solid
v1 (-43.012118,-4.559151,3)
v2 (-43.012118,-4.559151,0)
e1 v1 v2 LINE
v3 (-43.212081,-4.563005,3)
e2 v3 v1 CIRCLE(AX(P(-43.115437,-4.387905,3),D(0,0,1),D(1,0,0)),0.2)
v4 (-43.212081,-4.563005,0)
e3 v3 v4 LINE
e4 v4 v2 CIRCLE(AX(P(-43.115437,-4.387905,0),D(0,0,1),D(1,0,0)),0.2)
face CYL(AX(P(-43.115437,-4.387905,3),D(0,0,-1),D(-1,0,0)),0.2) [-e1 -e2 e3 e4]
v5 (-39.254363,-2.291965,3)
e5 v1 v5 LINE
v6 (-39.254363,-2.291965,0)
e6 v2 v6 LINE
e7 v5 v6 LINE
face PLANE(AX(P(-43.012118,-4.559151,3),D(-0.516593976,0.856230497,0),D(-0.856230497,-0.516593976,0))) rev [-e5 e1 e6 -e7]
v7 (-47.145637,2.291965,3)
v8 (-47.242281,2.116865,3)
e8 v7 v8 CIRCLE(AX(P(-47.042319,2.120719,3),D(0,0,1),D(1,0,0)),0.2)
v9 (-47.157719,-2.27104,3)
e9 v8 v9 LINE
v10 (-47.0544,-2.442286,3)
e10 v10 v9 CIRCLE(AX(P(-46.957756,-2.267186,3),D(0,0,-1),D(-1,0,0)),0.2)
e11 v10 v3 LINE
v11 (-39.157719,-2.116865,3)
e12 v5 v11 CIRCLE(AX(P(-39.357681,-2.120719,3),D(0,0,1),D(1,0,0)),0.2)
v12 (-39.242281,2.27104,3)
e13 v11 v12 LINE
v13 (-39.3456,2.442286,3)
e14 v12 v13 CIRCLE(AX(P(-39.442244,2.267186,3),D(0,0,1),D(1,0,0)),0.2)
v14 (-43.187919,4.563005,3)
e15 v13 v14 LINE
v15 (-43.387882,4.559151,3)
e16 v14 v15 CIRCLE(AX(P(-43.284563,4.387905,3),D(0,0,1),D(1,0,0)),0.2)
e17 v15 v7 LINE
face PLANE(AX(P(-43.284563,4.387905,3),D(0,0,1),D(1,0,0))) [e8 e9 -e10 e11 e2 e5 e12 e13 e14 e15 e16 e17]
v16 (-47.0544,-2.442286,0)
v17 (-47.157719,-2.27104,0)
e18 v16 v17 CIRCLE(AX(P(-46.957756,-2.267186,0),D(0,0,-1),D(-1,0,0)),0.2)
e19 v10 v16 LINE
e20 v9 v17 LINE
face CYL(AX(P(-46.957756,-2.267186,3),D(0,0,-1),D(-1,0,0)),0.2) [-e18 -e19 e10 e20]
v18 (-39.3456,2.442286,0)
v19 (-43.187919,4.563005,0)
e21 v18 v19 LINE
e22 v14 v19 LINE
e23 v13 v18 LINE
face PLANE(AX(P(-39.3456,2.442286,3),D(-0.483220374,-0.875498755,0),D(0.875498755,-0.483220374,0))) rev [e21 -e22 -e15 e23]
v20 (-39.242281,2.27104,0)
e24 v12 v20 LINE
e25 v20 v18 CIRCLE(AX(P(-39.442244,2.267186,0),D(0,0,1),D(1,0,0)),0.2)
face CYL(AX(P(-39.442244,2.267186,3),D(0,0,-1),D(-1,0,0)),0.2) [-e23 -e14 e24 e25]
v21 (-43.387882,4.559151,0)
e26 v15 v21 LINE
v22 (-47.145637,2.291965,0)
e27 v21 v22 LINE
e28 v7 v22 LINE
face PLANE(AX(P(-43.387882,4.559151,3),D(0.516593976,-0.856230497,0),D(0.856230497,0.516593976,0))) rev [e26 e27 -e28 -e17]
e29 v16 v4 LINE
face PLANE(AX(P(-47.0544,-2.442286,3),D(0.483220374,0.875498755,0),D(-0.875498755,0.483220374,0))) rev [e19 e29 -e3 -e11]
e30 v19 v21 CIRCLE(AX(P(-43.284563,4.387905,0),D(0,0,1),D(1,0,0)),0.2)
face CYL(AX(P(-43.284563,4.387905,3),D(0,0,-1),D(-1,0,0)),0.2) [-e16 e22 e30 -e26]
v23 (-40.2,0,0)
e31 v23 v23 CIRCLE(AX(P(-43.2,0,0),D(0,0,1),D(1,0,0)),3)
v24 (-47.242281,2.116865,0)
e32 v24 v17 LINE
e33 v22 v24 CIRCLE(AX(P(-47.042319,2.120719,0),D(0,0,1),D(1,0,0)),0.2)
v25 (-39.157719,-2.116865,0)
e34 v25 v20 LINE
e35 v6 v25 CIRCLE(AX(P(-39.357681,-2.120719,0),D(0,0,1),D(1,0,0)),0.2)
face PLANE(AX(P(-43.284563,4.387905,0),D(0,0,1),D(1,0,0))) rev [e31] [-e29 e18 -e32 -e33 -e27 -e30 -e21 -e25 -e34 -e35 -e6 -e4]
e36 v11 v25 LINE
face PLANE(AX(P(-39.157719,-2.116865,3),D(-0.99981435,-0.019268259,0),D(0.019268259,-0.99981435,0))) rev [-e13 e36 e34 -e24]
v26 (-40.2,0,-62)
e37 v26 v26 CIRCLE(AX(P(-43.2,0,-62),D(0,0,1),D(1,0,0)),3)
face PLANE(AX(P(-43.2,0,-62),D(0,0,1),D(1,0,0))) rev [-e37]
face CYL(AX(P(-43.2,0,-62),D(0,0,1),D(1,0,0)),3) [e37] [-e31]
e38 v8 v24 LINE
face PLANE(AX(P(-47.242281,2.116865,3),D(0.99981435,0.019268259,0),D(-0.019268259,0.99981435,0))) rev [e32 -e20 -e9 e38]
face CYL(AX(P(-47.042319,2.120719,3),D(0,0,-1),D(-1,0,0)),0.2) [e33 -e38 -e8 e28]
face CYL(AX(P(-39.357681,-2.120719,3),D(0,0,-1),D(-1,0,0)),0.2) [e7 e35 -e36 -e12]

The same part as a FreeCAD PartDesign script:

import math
import FreeCAD as App
import Part
import Sketcher
from FreeCAD import Vector

doc = App.newDocument("Part")
body = doc.addObject("PartDesign::Body", "Body")

sketch1 = body.newObject("Sketcher::SketchObject", "Sketch")
sketch1.AttachmentSupport = (doc.getObject("XY_Plane"), [""])
sketch1.MapMode = "FlatFace"
sketch1.addGeometry(Part.Circle(Vector(-43.2, 0, 0), Vector(0, 0, 1), 3), False)
sketch1.addConstraint([
    Sketcher.Constraint("PointOnObject", 0, 3, -1),
    Sketcher.Constraint("Diameter", 0, 6.0),
    Sketcher.Constraint("DistanceX", 0, 3, -1, 1, 43.2),
])
pad1 = body.newObject("PartDesign::Pad", "Pad")
pad1.Profile = sketch1
pad1.Length = 62
pad1.Reversed = True

sketch2 = body.newObject("Sketcher::SketchObject", "Sketch001")
sketch2.AttachmentSupport = (doc.getObject("XY_Plane"), [""])
sketch2.MapMode = "FlatFace"
sketch2.addGeometry([
    Part.LineSegment(Vector(-47.0544, -2.442286, 0), Vector(-43.212081, -4.563005, 0)),
    Part.ArcOfCircle(Part.Circle(Vector(-43.115437, -4.387905, 0), Vector(0, 0, 1), 0.2), math.radians(-118.895942), math.radians(-58.895942)),
    Part.LineSegment(Vector(-43.012118, -4.559151, 0), Vector(-39.254363, -2.291965, 0)),
    Part.ArcOfCircle(Part.Circle(Vector(-39.357681, -2.120719, 0), Vector(0, 0, 1), 0.2), math.radians(-58.895942), math.radians(1.104059)),
    Part.LineSegment(Vector(-39.157719, -2.116865, 0), Vector(-39.242281, 2.27104, 0)),
    Part.ArcOfCircle(Part.Circle(Vector(-39.442244, 2.267186, 0), Vector(0, 0, 1), 0.2), math.radians(1.104059), math.radians(61.104058)),
    Part.LineSegment(Vector(-39.3456, 2.442286, 0), Vector(-43.187919, 4.563005, 0)),
    Part.ArcOfCircle(Part.Circle(Vector(-43.284563, 4.387905, 0), Vector(0, 0, 1), 0.2), math.radians(61.104058), math.radians(121.104058)),
    Part.LineSegment(Vector(-43.387882, 4.559151, 0), Vector(-47.145637, 2.291965, 0)),
    Part.ArcOfCircle(Part.Circle(Vector(-47.042319, 2.120719, 0), Vector(0, 0, 1), 0.2), math.radians(121.104058), math.radians(181.104059)),
    Part.LineSegment(Vector(-47.242281, 2.116865, 0), Vector(-47.157719, -2.27104, 0)),
    Part.ArcOfCircle(Part.Circle(Vector(-46.957756, -2.267186, 0), Vector(0, 0, 1), 0.2), math.radians(-178.895941), math.radians(-118.895942)),
], False)
sketch2.addConstraint([
    Sketcher.Constraint("Coincident", 0, 2, 1, 1),
    Sketcher.Constraint("Coincident", 1, 2, 2, 1),
    Sketcher.Constraint("Coincident", 2, 2, 3, 1),
    Sketcher.Constraint("Coincident", 3, 2, 4, 1),
    Sketcher.Constraint("Coincident", 4, 2, 5, 1),
    Sketcher.Constraint("Coincident", 5, 2, 6, 1),
    Sketcher.Constraint("Coincident", 6, 2, 7, 1),
    Sketcher.Constraint("Coincident", 7, 2, 8, 1),
    Sketcher.Constraint("Coincident", 8, 2, 9, 1),
    Sketcher.Constraint("Coincident", 9, 2, 10, 1),
    Sketcher.Constraint("Coincident", 10, 2, 11, 1),
    Sketcher.Constraint("Coincident", 11, 2, 0, 1),
    Sketcher.Constraint("Radius", 1, 0.2),
    Sketcher.Constraint("Radius", 3, 0.2),
    Sketcher.Constraint("Radius", 5, 0.2),
    Sketcher.Constraint("Radius", 7, 0.2),
    Sketcher.Constraint("Radius", 9, 0.2),
    Sketcher.Constraint("Radius", 11, 0.2),
    Sketcher.Constraint("DistanceX", 5, 2, -1, 1, 39.3456),
    Sketcher.Constraint("DistanceX", 11, 2, -1, 1, 47.0544),
    Sketcher.Constraint("DistanceY", 0, 2, 1, 3, 0.1751),
    Sketcher.Constraint("DistanceX", 0, 2, 3, 3, 3.8544),
    Sketcher.Constraint("DistanceY", 2, 2, 3, 2, 0.1751),
    Sketcher.Constraint("DistanceX", 1, 2, 3, 2, 3.8544),
    Sketcher.Constraint("DistanceX", 3, 3, 4, 2, 0.1154),
    Sketcher.Constraint("DistanceY", 5, 3, 5, 2, 0.1751),
    Sketcher.Constraint("DistanceY", 7, 3, 6, 2, 0.1751),
    Sketcher.Constraint("DistanceX", 9, 3, 6, 2, 3.8544),
    Sketcher.Constraint("DistanceY", 9, 2, 8, 2, 0.1751),
    Sketcher.Constraint("DistanceX", 9, 2, 7, 2, 3.8544),
    Sketcher.Constraint("DistanceX", 10, 2, 9, 3, 0.1154),
    Sketcher.Constraint("DistanceY", 11, 2, 11, 3, 0.1751),
    Sketcher.Constraint("Distance", 0, 4.38872),
    Sketcher.Constraint("Distance", 2, 4.38872),
    Sketcher.Constraint("Distance", 4, 4.38872),
    Sketcher.Constraint("Distance", 6, 4.38872),
    Sketcher.Constraint("Distance", 8, 4.38872),
    Sketcher.Constraint("Distance", 10, 4.38872),
    Sketcher.Constraint("DistanceX", 3, 3, -1, 1, 39.357681),
    Sketcher.Constraint("DistanceY", 3, 3, -1, 1, 2.120719),
    Sketcher.Constraint("DistanceX", 9, 3, -1, 1, 47.042319),
    Sketcher.Constraint("DistanceY", -1, 1, 9, 3, 2.120719),
])
pad2 = body.newObject("PartDesign::Pad", "Pad001")
pad2.Profile = sketch2
pad2.Length = 3

doc.recompute()
